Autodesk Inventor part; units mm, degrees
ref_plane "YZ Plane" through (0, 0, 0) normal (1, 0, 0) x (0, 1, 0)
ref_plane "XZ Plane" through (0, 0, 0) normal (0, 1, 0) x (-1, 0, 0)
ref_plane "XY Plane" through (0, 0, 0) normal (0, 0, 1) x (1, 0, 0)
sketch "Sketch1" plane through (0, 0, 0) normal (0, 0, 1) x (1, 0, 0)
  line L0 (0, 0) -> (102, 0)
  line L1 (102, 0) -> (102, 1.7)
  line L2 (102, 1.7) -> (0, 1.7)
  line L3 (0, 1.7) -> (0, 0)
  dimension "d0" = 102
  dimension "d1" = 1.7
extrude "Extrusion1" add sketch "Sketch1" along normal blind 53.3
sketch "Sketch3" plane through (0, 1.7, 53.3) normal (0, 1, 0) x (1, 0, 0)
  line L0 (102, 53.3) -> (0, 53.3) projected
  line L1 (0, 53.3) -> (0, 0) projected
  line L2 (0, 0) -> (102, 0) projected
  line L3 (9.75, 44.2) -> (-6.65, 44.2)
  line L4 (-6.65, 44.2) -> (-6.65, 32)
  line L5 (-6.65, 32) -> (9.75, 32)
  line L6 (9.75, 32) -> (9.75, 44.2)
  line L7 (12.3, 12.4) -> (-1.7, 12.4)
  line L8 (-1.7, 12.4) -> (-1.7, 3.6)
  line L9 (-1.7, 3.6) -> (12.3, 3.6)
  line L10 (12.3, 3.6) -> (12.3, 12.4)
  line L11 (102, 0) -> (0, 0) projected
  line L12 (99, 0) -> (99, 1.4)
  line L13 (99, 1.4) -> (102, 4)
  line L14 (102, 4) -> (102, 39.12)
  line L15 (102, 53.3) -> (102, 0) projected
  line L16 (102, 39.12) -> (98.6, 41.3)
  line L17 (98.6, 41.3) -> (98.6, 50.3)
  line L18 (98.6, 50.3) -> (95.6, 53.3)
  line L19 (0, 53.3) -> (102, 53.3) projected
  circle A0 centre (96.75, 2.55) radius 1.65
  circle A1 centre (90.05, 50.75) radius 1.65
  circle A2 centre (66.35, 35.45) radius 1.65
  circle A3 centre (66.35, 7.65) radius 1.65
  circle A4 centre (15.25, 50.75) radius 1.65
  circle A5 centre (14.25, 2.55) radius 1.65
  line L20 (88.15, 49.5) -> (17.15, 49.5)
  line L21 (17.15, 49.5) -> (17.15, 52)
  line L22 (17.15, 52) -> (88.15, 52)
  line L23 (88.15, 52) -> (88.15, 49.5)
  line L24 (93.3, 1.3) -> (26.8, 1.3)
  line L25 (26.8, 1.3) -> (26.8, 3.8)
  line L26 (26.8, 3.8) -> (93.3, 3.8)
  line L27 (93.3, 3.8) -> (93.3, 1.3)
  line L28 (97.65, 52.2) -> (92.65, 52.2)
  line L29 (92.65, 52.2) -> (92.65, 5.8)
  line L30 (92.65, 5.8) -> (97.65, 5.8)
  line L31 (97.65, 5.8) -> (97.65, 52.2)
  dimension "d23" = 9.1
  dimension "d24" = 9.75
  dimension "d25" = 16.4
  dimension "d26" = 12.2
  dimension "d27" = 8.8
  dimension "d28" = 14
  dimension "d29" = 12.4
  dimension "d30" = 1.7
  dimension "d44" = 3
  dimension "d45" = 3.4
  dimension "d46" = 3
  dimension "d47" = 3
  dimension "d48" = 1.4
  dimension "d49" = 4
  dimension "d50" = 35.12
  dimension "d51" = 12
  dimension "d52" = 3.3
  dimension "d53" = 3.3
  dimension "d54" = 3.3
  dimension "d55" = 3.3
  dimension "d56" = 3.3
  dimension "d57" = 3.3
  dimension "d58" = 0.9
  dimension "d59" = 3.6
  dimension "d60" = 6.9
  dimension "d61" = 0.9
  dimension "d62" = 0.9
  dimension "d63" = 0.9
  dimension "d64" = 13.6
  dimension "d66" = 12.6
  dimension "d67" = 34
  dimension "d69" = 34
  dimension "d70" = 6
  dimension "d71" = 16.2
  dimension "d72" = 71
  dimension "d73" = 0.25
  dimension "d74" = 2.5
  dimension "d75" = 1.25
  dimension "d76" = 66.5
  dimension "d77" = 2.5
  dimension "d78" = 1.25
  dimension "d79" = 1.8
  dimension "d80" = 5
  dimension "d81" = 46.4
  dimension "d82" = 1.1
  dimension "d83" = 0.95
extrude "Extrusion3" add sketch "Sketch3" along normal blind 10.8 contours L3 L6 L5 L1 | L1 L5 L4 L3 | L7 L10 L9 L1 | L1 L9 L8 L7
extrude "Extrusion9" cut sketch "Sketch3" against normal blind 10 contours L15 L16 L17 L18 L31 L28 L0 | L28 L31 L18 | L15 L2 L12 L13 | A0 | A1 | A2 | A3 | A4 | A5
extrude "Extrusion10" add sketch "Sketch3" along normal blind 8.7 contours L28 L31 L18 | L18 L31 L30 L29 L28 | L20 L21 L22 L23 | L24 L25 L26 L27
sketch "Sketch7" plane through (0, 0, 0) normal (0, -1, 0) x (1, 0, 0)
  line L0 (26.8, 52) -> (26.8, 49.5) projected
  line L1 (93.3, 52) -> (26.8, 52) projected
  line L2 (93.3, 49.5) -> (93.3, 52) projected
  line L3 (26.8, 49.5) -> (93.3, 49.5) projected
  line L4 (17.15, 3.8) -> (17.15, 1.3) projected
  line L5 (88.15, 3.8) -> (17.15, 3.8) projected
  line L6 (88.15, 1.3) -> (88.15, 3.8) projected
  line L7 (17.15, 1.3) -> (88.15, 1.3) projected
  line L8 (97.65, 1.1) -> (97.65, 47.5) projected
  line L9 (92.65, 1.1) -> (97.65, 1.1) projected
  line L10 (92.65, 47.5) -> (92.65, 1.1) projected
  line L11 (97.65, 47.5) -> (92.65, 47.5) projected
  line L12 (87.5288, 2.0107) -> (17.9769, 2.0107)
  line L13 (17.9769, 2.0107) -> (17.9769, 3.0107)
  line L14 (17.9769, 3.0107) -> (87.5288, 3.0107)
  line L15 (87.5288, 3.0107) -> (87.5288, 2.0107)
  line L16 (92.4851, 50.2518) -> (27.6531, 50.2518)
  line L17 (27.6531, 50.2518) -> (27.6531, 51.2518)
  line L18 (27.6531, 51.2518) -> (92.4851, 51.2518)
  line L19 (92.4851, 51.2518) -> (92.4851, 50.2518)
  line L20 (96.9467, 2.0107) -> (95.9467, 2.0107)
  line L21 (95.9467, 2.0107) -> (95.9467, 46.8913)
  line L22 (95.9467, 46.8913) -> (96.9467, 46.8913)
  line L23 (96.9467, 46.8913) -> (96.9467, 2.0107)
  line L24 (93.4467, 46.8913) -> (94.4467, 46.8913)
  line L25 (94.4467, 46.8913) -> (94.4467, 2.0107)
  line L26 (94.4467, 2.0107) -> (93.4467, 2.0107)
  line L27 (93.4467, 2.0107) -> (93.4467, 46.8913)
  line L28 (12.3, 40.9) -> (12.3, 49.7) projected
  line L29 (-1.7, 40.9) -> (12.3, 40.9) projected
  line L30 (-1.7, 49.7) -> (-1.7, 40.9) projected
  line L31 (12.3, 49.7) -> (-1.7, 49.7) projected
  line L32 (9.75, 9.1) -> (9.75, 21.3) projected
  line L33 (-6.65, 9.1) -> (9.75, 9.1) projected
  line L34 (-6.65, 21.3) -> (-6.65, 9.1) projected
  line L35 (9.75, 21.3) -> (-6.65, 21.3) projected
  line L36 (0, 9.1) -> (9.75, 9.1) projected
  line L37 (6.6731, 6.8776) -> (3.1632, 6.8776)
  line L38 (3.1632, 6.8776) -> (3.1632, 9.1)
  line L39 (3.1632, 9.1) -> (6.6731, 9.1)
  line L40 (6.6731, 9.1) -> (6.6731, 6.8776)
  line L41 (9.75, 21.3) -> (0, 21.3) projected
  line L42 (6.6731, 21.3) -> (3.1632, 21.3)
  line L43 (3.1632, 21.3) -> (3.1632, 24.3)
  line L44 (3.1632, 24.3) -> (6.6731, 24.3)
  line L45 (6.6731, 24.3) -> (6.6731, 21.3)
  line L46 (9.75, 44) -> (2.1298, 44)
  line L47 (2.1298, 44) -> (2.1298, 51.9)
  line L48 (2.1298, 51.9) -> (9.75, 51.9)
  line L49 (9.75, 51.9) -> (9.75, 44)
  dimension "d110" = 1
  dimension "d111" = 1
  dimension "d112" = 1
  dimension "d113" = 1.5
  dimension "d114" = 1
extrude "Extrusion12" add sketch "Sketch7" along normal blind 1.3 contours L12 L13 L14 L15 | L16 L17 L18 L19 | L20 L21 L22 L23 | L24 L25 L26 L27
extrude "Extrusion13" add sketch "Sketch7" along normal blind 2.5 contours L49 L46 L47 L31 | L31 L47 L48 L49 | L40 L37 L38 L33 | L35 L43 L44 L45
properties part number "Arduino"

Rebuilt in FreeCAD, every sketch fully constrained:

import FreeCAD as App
import Part
import Sketcher
Q = App.Units.Quantity

doc = App.newDocument("Part")
body = doc.addObject("PartDesign::Body", "Body")

sketch1 = doc.addObject("Sketcher::SketchObject", "Sketch")
body.addObject(sketch1)
sketch1.AttachmentSupport = (doc.XY_Plane, [""])
sketch1.MapMode = "FlatFace"
sketch1.addGeometry([
    Part.LineSegment(App.Vector(0, 1.7, 0), App.Vector(0, 0, 0)),
    Part.LineSegment(App.Vector(0, 0, 0), App.Vector(102, 0, 0)),
    Part.LineSegment(App.Vector(102, 0, 0), App.Vector(102, 1.7, 0)),
    Part.LineSegment(App.Vector(102, 1.7, 0), App.Vector(0, 1.7, 0)),
], False)
sketch1.addConstraint([
    Sketcher.Constraint("Coincident", 0, 2, 1, 1),
    Sketcher.Constraint("Coincident", 1, 2, 2, 1),
    Sketcher.Constraint("Coincident", 2, 2, 3, 1),
    Sketcher.Constraint("Coincident", 3, 2, 0, 1),
    Sketcher.Constraint("Vertical", 0),
    Sketcher.Constraint("Horizontal", 1),
    Sketcher.Constraint("Vertical", 2),
    Sketcher.Constraint("Horizontal", 3),
    Sketcher.Constraint("Coincident", 0, 2, -1, 1),
    Sketcher.Constraint("DistanceX", 1, 1, 1, 2, Q("102 mm")),
    Sketcher.Constraint("DistanceY", 0, 2, 0, 1, Q("1.7 mm")),
])
pad1 = doc.addObject("PartDesign::Pad", "Pad")
body.addObject(pad1)
pad1.Profile = sketch1
pad1.Length = 53.3

sketch2 = doc.addObject("Sketcher::SketchObject", "Sketch001")
body.addObject(sketch2)
sketch2.AttachmentSupport = (doc.XZ_Plane, [""])
sketch2.MapMode = "FlatFace"
sketch2.AttachmentOffset = App.Placement(App.Vector(0, 0, -1.7), App.Rotation())
sketch2.addGeometry([
    Part.LineSegment(App.Vector(10, 9, 0), App.Vector(-7, 9, 0)),
    Part.LineSegment(App.Vector(-7, 9, 0), App.Vector(-7, 21, 0)),
    Part.LineSegment(App.Vector(-7, 21, 0), App.Vector(10, 21, 0)),
    Part.LineSegment(App.Vector(10, 21, 0), App.Vector(10, 9, 0)),
    Part.LineSegment(App.Vector(12, 41, 0), App.Vector(-2, 41, 0)),
    Part.LineSegment(App.Vector(-2, 41, 0), App.Vector(-2, 50, 0)),
    Part.LineSegment(App.Vector(-2, 50, 0), App.Vector(12, 50, 0)),
    Part.LineSegment(App.Vector(12, 50, 0), App.Vector(12, 41, 0)),
], False)
sketch2.addConstraint([
    Sketcher.Constraint("Coincident", 0, 2, 1, 1),
    Sketcher.Constraint("Coincident", 1, 2, 2, 1),
    Sketcher.Constraint("Coincident", 2, 2, 3, 1),
    Sketcher.Constraint("Coincident", 3, 2, 0, 1),
    Sketcher.Constraint("Coincident", 4, 2, 5, 1),
    Sketcher.Constraint("Coincident", 5, 2, 6, 1),
    Sketcher.Constraint("Coincident", 6, 2, 7, 1),
    Sketcher.Constraint("Coincident", 7, 2, 4, 1),
    Sketcher.Constraint("Horizontal", 0),
    Sketcher.Constraint("Vertical", 1),
    Sketcher.Constraint("Horizontal", 2),
    Sketcher.Constraint("Vertical", 3),
    Sketcher.Constraint("Horizontal", 4),
    Sketcher.Constraint("Vertical", 5),
    Sketcher.Constraint("Horizontal", 6),
    Sketcher.Constraint("Vertical", 7),
    Sketcher.Constraint("DistanceX", 4, 2, 4, 1, Q("14 mm")),
    Sketcher.Constraint("DistanceX", 0, 2, 0, 1, Q("16.4 mm")),
    Sketcher.Constraint("DistanceY", 1, 1, 1, 2, Q("12.2 mm")),
    Sketcher.Constraint("DistanceY", 5, 1, 5, 2, Q("8.8 mm")),
    Sketcher.Constraint("DistanceY", -1, 1, 0, 2, Q("9.1 mm")),
    Sketcher.Constraint("DistanceX", 4, 2, -1, 1, Q("1.7 mm")),
    Sketcher.Constraint("DistanceX", -1, 1, 2, 2, Q("9.75 mm")),
    Sketcher.Constraint("DistanceY", -1, 1, 4, 2, Q("40.9 mm")),
])
pad2 = doc.addObject("PartDesign::Pad", "Pad001")
body.addObject(pad2)
pad2.Profile = sketch2
pad2.Length = 10.8
pad2.Reversed = True

sketch3 = doc.addObject("Sketcher::SketchObject", "Sketch002")
body.addObject(sketch3)
sketch3.AttachmentSupport = (doc.XZ_Plane, [""])
sketch3.MapMode = "FlatFace"
sketch3.AttachmentOffset = App.Placement(App.Vector(0, 0, -1.7), App.Rotation())
sketch3.addGeometry([
    Part.LineSegment(App.Vector(102, 14.2, 0), App.Vector(102, 0, 0)),
    Part.LineSegment(App.Vector(102, 0, 0), App.Vector(95.6, 0, 0)),
    Part.LineSegment(App.Vector(95.6, 0, 0), App.Vector(98.6, 3, 0)),
    Part.LineSegment(App.Vector(98.6, 3, 0), App.Vector(98.6, 12, 0)),
    Part.LineSegment(App.Vector(98.6, 12, 0), App.Vector(102, 14.2, 0)),
    Part.LineSegment(App.Vector(102, 53.3, 0), App.Vector(102, 49.3, 0)),
    Part.LineSegment(App.Vector(102, 49.3, 0), App.Vector(99, 51.9, 0)),
    Part.LineSegment(App.Vector(99, 51.9, 0), App.Vector(99, 53.3, 0)),
    Part.LineSegment(App.Vector(99, 53.3, 0), App.Vector(102, 53.3, 0)),
    Part.Circle(App.Vector(96.8, 50.8, 0), App.Vector(0, 0, 1), 1.6),
    Part.Circle(App.Vector(90, 2.5, 0), App.Vector(0, 0, 1), 1.6),
    Part.Circle(App.Vector(66.3, 17.9, 0), App.Vector(0, 0, 1), 1.6),
    Part.Circle(App.Vector(66.3, 45.6, 0), App.Vector(0, 0, 1), 1.6),
    Part.Circle(App.Vector(15.2, 2.5, 0), App.Vector(0, 0, 1), 1.6),
    Part.Circle(App.Vector(14.2, 50.8, 0), App.Vector(0, 0, 1), 1.6),
], False)
sketch3.addConstraint([
    Sketcher.Constraint("Coincident", 0, 2, 1, 1),
    Sketcher.Constraint("Coincident", 1, 2, 2, 1),
    Sketcher.Constraint("Coincident", 2, 2, 3, 1),
    Sketcher.Constraint("Coincident", 3, 2, 4, 1),
    Sketcher.Constraint("Coincident", 4, 2, 0, 1),
    Sketcher.Constraint("Coincident", 5, 2, 6, 1),
    Sketcher.Constraint("Coincident", 6, 2, 7, 1),
    Sketcher.Constraint("Coincident", 7, 2, 8, 1),
    Sketcher.Constraint("Coincident", 8, 2, 5, 1),
    Sketcher.Constraint("Vertical", 0),
    Sketcher.Constraint("Horizontal", 1),
    Sketcher.Constraint("Vertical", 3),
    Sketcher.Constraint("Vertical", 5),
    Sketcher.Constraint("Vertical", 7),
    Sketcher.Constraint("Horizontal", 8),
    Sketcher.Constraint("Equal", 9, 10),
    Sketcher.Constraint("Equal", 10, 11),
    Sketcher.Constraint("Equal", 11, 12),
    Sketcher.Constraint("Equal", 12, 13),
    Sketcher.Constraint("Equal", 13, 14),
    Sketcher.Constraint("PointOnObject", 0, 2, -1),
    Sketcher.Constraint("Horizontal", 10, 3, 13, 3),
    Sketcher.Constraint("Horizontal", 9, 3, 14, 3),
    Sketcher.Constraint("Vertical", 11, 3, 12, 3),
    Sketcher.Constraint("Vertical", 4, 2, 5, 2),
    Sketcher.Constraint("Diameter", 9, Q("3.3 mm")),
    Sketcher.Constraint("DistanceX", 8, 1, 8, 2, Q("3 mm")),
    Sketcher.Constraint("DistanceY", 5, 2, 5, 1, Q("4 mm")),
    Sketcher.Constraint("DistanceY", 7, 1, 7, 2, Q("1.4 mm")),
    Sketcher.Constraint("DistanceY", -1, 1, 2, 2, Q("3 mm")),
    Sketcher.Constraint("DistanceY", -1, 1, 3, 2, Q("12 mm")),
    Sketcher.Constraint("DistanceX", 1, 2, 2, 2, Q("3 mm")),
    Sketcher.Constraint("DistanceX", 2, 2, 0, 2, Q("3.4 mm")),
    Sketcher.Constraint("DistanceY", 4, 2, 5, 2, Q("35.12 mm")),
    Sketcher.Constraint("DistanceX", -1, 1, 0, 2, Q("102 mm")),
    Sketcher.Constraint("DistanceX", 14, 3, 13, 3, Q("1 mm")),
    Sketcher.Constraint("DistanceY", 0, 2, 0, 1, Q("14.18 mm")),
    Sketcher.Constraint("DistanceX", 10, 3, 9, 3, Q("6.7 mm")),
    Sketcher.Constraint("DistanceY", 10, 3, 9, 3, Q("48.2 mm")),
    Sketcher.Constraint("DistanceX", 11, 3, 10, 3, Q("23.7 mm")),
    Sketcher.Constraint("DistanceY", 10, 3, 11, 3, Q("15.3 mm")),
    Sketcher.Constraint("DistanceY", 11, 3, 12, 3, Q("27.8 mm")),
    Sketcher.Constraint("DistanceX", 13, 3, 11, 3, Q("51.1 mm")),
    Sketcher.Constraint("DistanceX", -1, 1, 9, 3, Q("96.75 mm")),
    Sketcher.Constraint("DistanceY", -1, 1, 9, 3, Q("50.75 mm")),
])
pocket1 = doc.addObject("PartDesign::Pocket", "Pocket")
body.addObject(pocket1)
pocket1.Profile = sketch3
pocket1.Length = 10
pocket1.Reversed = True

sketch4 = doc.addObject("Sketcher::SketchObject", "Sketch003")
body.addObject(sketch4)
sketch4.AttachmentSupport = (doc.XZ_Plane, [""])
sketch4.MapMode = "FlatFace"
sketch4.AttachmentOffset = App.Placement(App.Vector(0, 0, -1.7), App.Rotation())
sketch4.addGeometry([
    Part.LineSegment(App.Vector(97.7, 1.1, 0), App.Vector(92.7, 1.1, 0)),
    Part.LineSegment(App.Vector(92.7, 1.1, 0), App.Vector(92.7, 47.5, 0)),
    Part.LineSegment(App.Vector(92.7, 47.5, 0), App.Vector(97.7, 47.5, 0)),
    Part.LineSegment(App.Vector(97.7, 47.5, 0), App.Vector(97.7, 1.1, 0)),
    Part.LineSegment(App.Vector(17.1, 3.8, 0), App.Vector(88.2, 3.8, 0)),
    Part.LineSegment(App.Vector(88.2, 3.8, 0), App.Vector(88.2, 1.3, 0)),
    Part.LineSegment(App.Vector(88.2, 1.3, 0), App.Vector(17.1, 1.3, 0)),
    Part.LineSegment(App.Vector(17.1, 1.3, 0), App.Vector(17.1, 3.8, 0)),
    Part.LineSegment(App.Vector(26.8, 52, 0), App.Vector(93.3, 52, 0)),
    Part.LineSegment(App.Vector(93.3, 52, 0), App.Vector(93.3, 49.5, 0)),
    Part.LineSegment(App.Vector(93.3, 49.5, 0), App.Vector(26.8, 49.5, 0)),
    Part.LineSegment(App.Vector(26.8, 49.5, 0), App.Vector(26.8, 52, 0)),
], False)
sketch4.addConstraint([
    Sketcher.Constraint("Coincident", 0, 2, 1, 1),
    Sketcher.Constraint("Coincident", 1, 2, 2, 1),
    Sketcher.Constraint("Coincident", 2, 2, 3, 1),
    Sketcher.Constraint("Coincident", 3, 2, 0, 1),
    Sketcher.Constraint("Coincident", 4, 2, 5, 1),
    Sketcher.Constraint("Coincident", 5, 2, 6, 1),
    Sketcher.Constraint("Coincident", 6, 2, 7, 1),
    Sketcher.Constraint("Coincident", 7, 2, 4, 1),
    Sketcher.Constraint("Coincident", 8, 2, 9, 1),
    Sketcher.Constraint("Coincident", 9, 2, 10, 1),
    Sketcher.Constraint("Coincident", 10, 2, 11, 1),
    Sketcher.Constraint("Coincident", 11, 2, 8, 1),
    Sketcher.Constraint("Horizontal", 0),
    Sketcher.Constraint("Vertical", 1),
    Sketcher.Constraint("Horizontal", 2),
    Sketcher.Constraint("Vertical", 3),
    Sketcher.Constraint("Horizontal", 4),
    Sketcher.Constraint("Vertical", 5),
    Sketcher.Constraint("Horizontal", 6),
    Sketcher.Constraint("Vertical", 7),
    Sketcher.Constraint("Horizontal", 8),
    Sketcher.Constraint("Vertical", 9),
    Sketcher.Constraint("Horizontal", 10),
    Sketcher.Constraint("Vertical", 11),
    Sketcher.Constraint("Equal", 7, 9),
    Sketcher.Constraint("DistanceX", 0, 2, 0, 1, Q("5 mm")),
    Sketcher.Constraint("DistanceX", 4, 1, 4, 2, Q("71 mm")),
    Sketcher.Constraint("DistanceX", 8, 1, 8, 2, Q("66.5 mm")),
    Sketcher.Constraint("DistanceY", 1, 1, 1, 2, Q("46.4 mm")),
    Sketcher.Constraint("DistanceY", 5, 2, 5, 1, Q("2.5 mm")),
    Sketcher.Constraint("DistanceY", -1, 1, 0, 2, Q("1.1 mm")),
    Sketcher.Constraint("DistanceY", -1, 1, 8, 2, Q("52 mm")),
    Sketcher.Constraint("DistanceY", -1, 1, 4, 2, Q("3.8 mm")),
    Sketcher.Constraint("DistanceX", -1, 1, 8, 2, Q("93.3 mm")),
    Sketcher.Constraint("DistanceX", 4, 2, 0, 2, Q("4.5 mm")),
    Sketcher.Constraint("DistanceX", -1, 1, 0, 2, Q("92.65 mm")),
])
pad3 = doc.addObject("PartDesign::Pad", "Pad002")
body.addObject(pad3)
pad3.Profile = sketch4
pad3.Length = 8.7
pad3.Reversed = True

sketch5 = doc.addObject("Sketcher::SketchObject", "Sketch004")
body.addObject(sketch5)
sketch5.AttachmentSupport = (doc.XZ_Plane, [""])
sketch5.MapMode = "FlatFace"
sketch5.addGeometry([
    Part.LineSegment(App.Vector(18, 2, 0), App.Vector(87.5, 2, 0)),
    Part.LineSegment(App.Vector(87.5, 2, 0), App.Vector(87.5, 3, 0)),
    Part.LineSegment(App.Vector(87.5, 3, 0), App.Vector(18, 3, 0)),
    Part.LineSegment(App.Vector(18, 3, 0), App.Vector(18, 2, 0)),
    Part.LineSegment(App.Vector(27.7, 50.3, 0), App.Vector(92.5, 50.3, 0)),
    Part.LineSegment(App.Vector(92.5, 50.3, 0), App.Vector(92.5, 51.3, 0)),
    Part.LineSegment(App.Vector(92.5, 51.3, 0), App.Vector(27.7, 51.3, 0)),
    Part.LineSegment(App.Vector(27.7, 51.3, 0), App.Vector(27.7, 50.3, 0)),
    Part.LineSegment(App.Vector(95.9, 2, 0), App.Vector(96.9, 2, 0)),
    Part.LineSegment(App.Vector(96.9, 2, 0), App.Vector(96.9, 46.9, 0)),
    Part.LineSegment(App.Vector(96.9, 46.9, 0), App.Vector(95.9, 46.9, 0)),
    Part.LineSegment(App.Vector(95.9, 46.9, 0), App.Vector(95.9, 2, 0)),
    Part.LineSegment(App.Vector(94.4, 46.9, 0), App.Vector(93.4, 46.9, 0)),
    Part.LineSegment(App.Vector(93.4, 46.9, 0), App.Vector(93.4, 2, 0)),
    Part.LineSegment(App.Vector(93.4, 2, 0), App.Vector(94.4, 2, 0)),
    Part.LineSegment(App.Vector(94.4, 2, 0), App.Vector(94.4, 46.9, 0)),
], False)
sketch5.addConstraint([
    Sketcher.Constraint("Coincident", 0, 2, 1, 1),
    Sketcher.Constraint("Coincident", 1, 2, 2, 1),
    Sketcher.Constraint("Coincident", 2, 2, 3, 1),
    Sketcher.Constraint("Coincident", 3, 2, 0, 1),
    Sketcher.Constraint("Coincident", 4, 2, 5, 1),
    Sketcher.Constraint("Coincident", 5, 2, 6, 1),
    Sketcher.Constraint("Coincident", 6, 2, 7, 1),
    Sketcher.Constraint("Coincident", 7, 2, 4, 1),
    Sketcher.Constraint("Coincident", 8, 2, 9, 1),
    Sketcher.Constraint("Coincident", 9, 2, 10, 1),
    Sketcher.Constraint("Coincident", 10, 2, 11, 1),
    Sketcher.Constraint("Coincident", 11, 2, 8, 1),
    Sketcher.Constraint("Coincident", 12, 2, 13, 1),
    Sketcher.Constraint("Coincident", 13, 2, 14, 1),
    Sketcher.Constraint("Coincident", 14, 2, 15, 1),
    Sketcher.Constraint("Coincident", 15, 2, 12, 1),
    Sketcher.Constraint("Horizontal", 0),
    Sketcher.Constraint("Vertical", 1),
    Sketcher.Constraint("Horizontal", 2),
    Sketcher.Constraint("Vertical", 3),
    Sketcher.Constraint("Horizontal", 4),
    Sketcher.Constraint("Vertical", 5),
    Sketcher.Constraint("Horizontal", 6),
    Sketcher.Constraint("Vertical", 7),
    Sketcher.Constraint("Horizontal", 8),
    Sketcher.Constraint("Vertical", 9),
    Sketcher.Constraint("Horizontal", 10),
    Sketcher.Constraint("Vertical", 11),
    Sketcher.Constraint("Horizontal", 12),
    Sketcher.Constraint("Vertical", 13),
    Sketcher.Constraint("Horizontal", 14),
    Sketcher.Constraint("Vertical", 15),
    Sketcher.Constraint("Horizontal", 3, 2, 8, 2),
    Sketcher.Constraint("Horizontal", 10, 2, 12, 2),
    Sketcher.Constraint("Horizontal", 11, 2, 13, 2),
    Sketcher.Constraint("Equal", 10, 12),
    Sketcher.Constraint("Equal", 14, 1),
    Sketcher.Constraint("Equal", 3, 5),
    Sketcher.Constraint("DistanceX", 8, 1, 8, 2, Q("1 mm")),
    Sketcher.Constraint("DistanceX", 14, 2, 11, 2, Q("1.5 mm")),
    Sketcher.Constraint("DistanceX", 0, 1, 0, 2, Q("69.552 mm")),
    Sketcher.Constraint("DistanceX", 4, 1, 4, 2, Q("64.832 mm")),
    Sketcher.Constraint("DistanceY", 9, 1, 9, 2, Q("44.8806 mm")),
    Sketcher.Constraint("DistanceX", -1, 1, 2, 2, Q("17.977 mm")),
    Sketcher.Constraint("DistanceX", -1, 1, 4, 2, Q("92.485 mm")),
    Sketcher.Constraint("DistanceY", 1, 2, 4, 2, Q("47.241 mm")),
    Sketcher.Constraint("DistanceX", 0, 2, 8, 2, Q("9.418 mm")),
    Sketcher.Constraint("DistanceY", -1, 1, 0, 2, Q("2.0107 mm")),
])
pad4 = doc.addObject("PartDesign::Pad", "Pad003")
body.addObject(pad4)
pad4.Profile = sketch5
pad4.Length = 1.3

sketch6 = doc.addObject("Sketcher::SketchObject", "Sketch005")
body.addObject(sketch6)
sketch6.AttachmentSupport = (doc.XZ_Plane, [""])
sketch6.MapMode = "FlatFace"
sketch6.addGeometry([
    Part.LineSegment(App.Vector(9.8, 44, 0), App.Vector(9.8, 51.9, 0)),
    Part.LineSegment(App.Vector(9.8, 51.9, 0), App.Vector(2.1, 51.9, 0)),
    Part.LineSegment(App.Vector(2.1, 51.9, 0), App.Vector(2.1, 44, 0)),
    Part.LineSegment(App.Vector(2.1, 44, 0), App.Vector(9.8, 44, 0)),
    Part.LineSegment(App.Vector(6.7, 6.9, 0), App.Vector(6.7, 9.1, 0)),
    Part.LineSegment(App.Vector(6.7, 9.1, 0), App.Vector(3.2, 9.1, 0)),
    Part.LineSegment(App.Vector(3.2, 9.1, 0), App.Vector(3.2, 6.9, 0)),
    Part.LineSegment(App.Vector(3.2, 6.9, 0), App.Vector(6.7, 6.9, 0)),
    Part.LineSegment(App.Vector(3.2, 21.3, 0), App.Vector(6.7, 21.3, 0)),
    Part.LineSegment(App.Vector(6.7, 21.3, 0), App.Vector(6.7, 24.3, 0)),
    Part.LineSegment(App.Vector(6.7, 24.3, 0), App.Vector(3.2, 24.3, 0)),
    Part.LineSegment(App.Vector(3.2, 24.3, 0), App.Vector(3.2, 21.3, 0)),
], False)
sketch6.addConstraint([
    Sketcher.Constraint("Coincident", 0, 2, 1, 1),
    Sketcher.Constraint("Coincident", 1, 2, 2, 1),
    Sketcher.Constraint("Coincident", 2, 2, 3, 1),
    Sketcher.Constraint("Coincident", 3, 2, 0, 1),
    Sketcher.Constraint("Coincident", 4, 2, 5, 1),
    Sketcher.Constraint("Coincident", 5, 2, 6, 1),
    Sketcher.Constraint("Coincident", 6, 2, 7, 1),
    Sketcher.Constraint("Coincident", 7, 2, 4, 1),
    Sketcher.Constraint("Coincident", 8, 2, 9, 1),
    Sketcher.Constraint("Coincident", 9, 2, 10, 1),
    Sketcher.Constraint("Coincident", 10, 2, 11, 1),
    Sketcher.Constraint("Coincident", 11, 2, 8, 1),
    Sketcher.Constraint("Vertical", 0),
    Sketcher.Constraint("Horizontal", 1),
    Sketcher.Constraint("Vertical", 2),
    Sketcher.Constraint("Horizontal", 3),
    Sketcher.Constraint("Vertical", 4),
    Sketcher.Constraint("Horizontal", 5),
    Sketcher.Constraint("Vertical", 6),
    Sketcher.Constraint("Horizontal", 7),
    Sketcher.Constraint("Horizontal", 8),
    Sketcher.Constraint("Vertical", 9),
    Sketcher.Constraint("Horizontal", 10),
    Sketcher.Constraint("Vertical", 11),
    Sketcher.Constraint("Vertical", 7, 2, 8, 2),
    Sketcher.Constraint("Vertical", 6, 2, 10, 2),
    Sketcher.Constraint("DistanceY", 9, 1, 9, 2, Q("3 mm")),
    Sketcher.Constraint("DistanceY", 0, 1, 0, 2, Q("7.9 mm")),
    Sketcher.Constraint("DistanceY", -1, 1, 2, 2, Q("44 mm")),
    Sketcher.Constraint("DistanceX", 5, 2, 5, 1, Q("3.51 mm")),
    Sketcher.Constraint("DistanceY", -1, 1, 4, 2, Q("9.1 mm")),
    Sketcher.Constraint("DistanceY", -1, 1, 8, 2, Q("21.3 mm")),
    Sketcher.Constraint("DistanceX", -1, 1, 0, 2, Q("9.75 mm")),
    Sketcher.Constraint("DistanceX", 1, 2, 1, 1, Q("7.6202 mm")),
    Sketcher.Constraint("DistanceY", 4, 1, 4, 2, Q("2.2224 mm")),
    Sketcher.Constraint("DistanceX", -1, 1, 4, 2, Q("6.673 mm")),
])
pad5 = doc.addObject("PartDesign::Pad", "Pad004")
body.addObject(pad5)
pad5.Profile = sketch6
pad5.Length = 2.5

doc.recompute()
